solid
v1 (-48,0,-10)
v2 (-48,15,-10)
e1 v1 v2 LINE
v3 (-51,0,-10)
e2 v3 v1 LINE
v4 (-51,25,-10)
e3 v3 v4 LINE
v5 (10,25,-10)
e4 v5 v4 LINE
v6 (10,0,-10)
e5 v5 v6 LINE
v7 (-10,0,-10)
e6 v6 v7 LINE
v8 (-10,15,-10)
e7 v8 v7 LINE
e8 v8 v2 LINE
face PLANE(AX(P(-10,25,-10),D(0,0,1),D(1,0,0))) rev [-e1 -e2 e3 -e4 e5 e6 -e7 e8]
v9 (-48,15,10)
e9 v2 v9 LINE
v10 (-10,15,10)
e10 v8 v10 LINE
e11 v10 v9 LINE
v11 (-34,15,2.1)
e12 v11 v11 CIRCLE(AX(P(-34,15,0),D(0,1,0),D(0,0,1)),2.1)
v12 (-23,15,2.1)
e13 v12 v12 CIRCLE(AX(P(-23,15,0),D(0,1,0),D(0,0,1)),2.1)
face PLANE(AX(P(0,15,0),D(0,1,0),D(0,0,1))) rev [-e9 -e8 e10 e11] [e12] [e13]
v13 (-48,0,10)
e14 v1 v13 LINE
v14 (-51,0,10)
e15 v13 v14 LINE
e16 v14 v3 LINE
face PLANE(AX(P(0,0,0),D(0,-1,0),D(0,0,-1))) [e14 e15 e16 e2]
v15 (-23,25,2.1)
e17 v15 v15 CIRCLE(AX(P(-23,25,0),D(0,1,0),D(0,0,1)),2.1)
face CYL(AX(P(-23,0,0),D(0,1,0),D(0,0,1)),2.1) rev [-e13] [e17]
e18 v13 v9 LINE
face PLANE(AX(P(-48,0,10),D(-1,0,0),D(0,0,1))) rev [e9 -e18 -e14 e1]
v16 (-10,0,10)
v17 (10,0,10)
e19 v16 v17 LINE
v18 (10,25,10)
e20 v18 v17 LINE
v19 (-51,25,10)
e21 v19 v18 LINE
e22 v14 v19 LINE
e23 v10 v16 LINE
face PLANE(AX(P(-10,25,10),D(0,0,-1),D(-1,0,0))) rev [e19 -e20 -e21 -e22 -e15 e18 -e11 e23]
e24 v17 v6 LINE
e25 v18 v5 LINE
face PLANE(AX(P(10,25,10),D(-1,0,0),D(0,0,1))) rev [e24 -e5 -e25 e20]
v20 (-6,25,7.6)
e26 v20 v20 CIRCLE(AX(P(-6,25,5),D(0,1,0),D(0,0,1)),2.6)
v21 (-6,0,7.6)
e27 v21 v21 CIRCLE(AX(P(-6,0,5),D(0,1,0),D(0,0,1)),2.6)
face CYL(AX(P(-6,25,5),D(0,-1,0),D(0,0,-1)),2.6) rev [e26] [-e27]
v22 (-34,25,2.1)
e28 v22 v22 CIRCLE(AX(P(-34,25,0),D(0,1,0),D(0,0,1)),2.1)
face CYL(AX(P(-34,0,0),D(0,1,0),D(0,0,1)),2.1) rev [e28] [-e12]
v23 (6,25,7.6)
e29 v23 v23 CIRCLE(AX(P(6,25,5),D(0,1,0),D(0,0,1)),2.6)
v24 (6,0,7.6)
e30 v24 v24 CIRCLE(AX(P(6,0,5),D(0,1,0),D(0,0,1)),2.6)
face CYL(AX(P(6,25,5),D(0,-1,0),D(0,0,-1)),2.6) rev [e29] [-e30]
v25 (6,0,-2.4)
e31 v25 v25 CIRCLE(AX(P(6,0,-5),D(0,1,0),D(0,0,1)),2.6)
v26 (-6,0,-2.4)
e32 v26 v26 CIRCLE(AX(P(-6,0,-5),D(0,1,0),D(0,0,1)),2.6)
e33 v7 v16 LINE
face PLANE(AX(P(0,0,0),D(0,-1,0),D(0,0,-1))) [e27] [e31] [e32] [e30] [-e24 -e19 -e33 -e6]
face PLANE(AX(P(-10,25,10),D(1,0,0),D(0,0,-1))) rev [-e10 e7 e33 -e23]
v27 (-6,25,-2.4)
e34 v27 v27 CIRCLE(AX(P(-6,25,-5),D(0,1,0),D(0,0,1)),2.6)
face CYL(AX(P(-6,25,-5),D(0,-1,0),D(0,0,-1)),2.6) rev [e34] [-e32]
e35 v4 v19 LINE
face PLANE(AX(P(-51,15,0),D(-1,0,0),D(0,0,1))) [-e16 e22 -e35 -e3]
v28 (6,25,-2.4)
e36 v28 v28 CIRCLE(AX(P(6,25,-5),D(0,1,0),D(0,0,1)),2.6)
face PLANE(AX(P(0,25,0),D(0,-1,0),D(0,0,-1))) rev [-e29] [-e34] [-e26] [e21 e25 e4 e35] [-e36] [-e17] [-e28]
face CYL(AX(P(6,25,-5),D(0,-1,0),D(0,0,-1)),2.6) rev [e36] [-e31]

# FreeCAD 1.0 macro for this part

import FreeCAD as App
import Part
import Sketcher
Q = App.Units.Quantity


def add_polygon(sketch, points):
    """Adds a closed chain of lines whose ends are joined by coincident constraints."""
    first, n = sketch.GeometryCount, len(points)
    for a, b in zip(points, points[1:] + points[:1]):
        sketch.addGeometry(Part.LineSegment(App.Vector(*a, 0), App.Vector(*b, 0)), False)
    for i in range(n):
        sketch.addConstraint(Sketcher.Constraint("Coincident", first + i, 2, first + (i + 1) % n, 1))

doc = App.newDocument("Part")
body = doc.addObject("PartDesign::Body", "Body")

# Sketch on XZ plane
sketch1 = body.newObject("Sketcher::SketchObject", "Sketch")
sketch1.AttachmentSupport = (doc.getObject("XZ_Plane"), [""])
sketch1.MapMode = "FlatFace"
add_polygon(sketch1, [(-10, -10), (-10, 10), (10, 10), (10, -10)])  # lines 0-3
sketch1.addGeometry(Part.Circle(App.Vector(-6, 5, 0), App.Vector(0, 0, 1), 2.6), False)  # 4
sketch1.addGeometry(Part.Circle(App.Vector(6, 5, 0), App.Vector(0, 0, 1), 2.6), False)  # 5
sketch1.addGeometry(Part.Circle(App.Vector(-6, -5, 0), App.Vector(0, 0, 1), 2.6), False)  # 6
sketch1.addGeometry(Part.Circle(App.Vector(6, -5, 0), App.Vector(0, 0, 1), 2.6), False)  # 7
sketch1.addConstraint(Sketcher.Constraint("Vertical", 0))
sketch1.addConstraint(Sketcher.Constraint("Horizontal", 1))
sketch1.addConstraint(Sketcher.Constraint("Vertical", 2))
sketch1.addConstraint(Sketcher.Constraint("Horizontal", 3))
sketch1.addConstraint(Sketcher.Constraint("Equal", 4, 5))
sketch1.addConstraint(Sketcher.Constraint("Equal", 5, 6))
sketch1.addConstraint(Sketcher.Constraint("Equal", 6, 7))
sketch1.addConstraint(Sketcher.Constraint("Symmetric", 5, 3, 6, 3, -1, 1))
sketch1.addConstraint(Sketcher.Constraint("Symmetric", 4, 3, 7, 3, -1, 1))
sketch1.addConstraint(Sketcher.Constraint("Symmetric", 0, 2, 2, 2, -1, 1))
sketch1.addConstraint(Sketcher.Constraint("Symmetric", 4, 3, 5, 3, -2))
sketch1.addConstraint(Sketcher.Constraint("Equal", 3, 0))
sketch1.addConstraint(Sketcher.Constraint("Diameter", 4, Q("5.2 mm")))
sketch1.addConstraint(Sketcher.Constraint("DistanceX", 1, 1, 1, 2, Q("20 mm")))
sketch1.addConstraint(Sketcher.Constraint("DistanceX", 4, 3, -1, 1, Q("6 mm")))
sketch1.addConstraint(Sketcher.Constraint("DistanceY", -1, 1, 4, 3, Q("5 mm")))
pad1 = body.newObject("PartDesign::Pad", "Pad")
pad1.Profile = sketch1
pad1.Length = 25
pad1.Reversed = True

# Sketch on XZ plane
sketch2 = body.newObject("Sketcher::SketchObject", "Sketch001")
sketch2.AttachmentSupport = (doc.getObject("XZ_Plane"), [""])
sketch2.MapMode = "FlatFace"
sketch2.AttachmentOffset = App.Placement(App.Vector(0, 0, -25), App.Rotation())
add_polygon(sketch2, [(-51, -10), (-51, 10), (-10, 10), (-10, -10)])  # lines 0-3
sketch2.addConstraint(Sketcher.Constraint("Vertical", 0))
sketch2.addConstraint(Sketcher.Constraint("Horizontal", 1))
sketch2.addConstraint(Sketcher.Constraint("Vertical", 2))
sketch2.addConstraint(Sketcher.Constraint("Horizontal", 3))
sketch2.addConstraint(Sketcher.Constraint("DistanceX", 1, 1, 1, 2, Q("41 mm")))
sketch2.addConstraint(Sketcher.Constraint("DistanceY", 0, 1, 0, 2, Q("20 mm")))
sketch2.addConstraint(Sketcher.Constraint("DistanceX", 0, 2, -1, 1, Q("51 mm")))
sketch2.addConstraint(Sketcher.Constraint("DistanceY", -1, 1, 0, 2, Q("10 mm")))
pad2 = body.newObject("PartDesign::Pad", "Pad001")
pad2.Profile = sketch2
pad2.Length = 10

# Sketch on XZ plane
sketch3 = body.newObject("Sketcher::SketchObject", "Sketch002")
sketch3.AttachmentSupport = (doc.getObject("XZ_Plane"), [""])
sketch3.MapMode = "FlatFace"
sketch3.AttachmentOffset = App.Placement(App.Vector(0, 0, -15), App.Rotation())
add_polygon(sketch3, [(-51, 10), (-51, -10), (-48, -10), (-48, 10)])  # lines 0-3
sketch3.addConstraint(Sketcher.Constraint("Vertical", 0))
sketch3.addConstraint(Sketcher.Constraint("Horizontal", 1))
sketch3.addConstraint(Sketcher.Constraint("Vertical", 2))
sketch3.addConstraint(Sketcher.Constraint("Horizontal", 3))
sketch3.addConstraint(Sketcher.Constraint("DistanceX", 1, 1, 1, 2, Q("3 mm")))
sketch3.addConstraint(Sketcher.Constraint("DistanceY", 0, 2, 0, 1, Q("20 mm")))
sketch3.addConstraint(Sketcher.Constraint("DistanceX", 0, 2, -1, 1, Q("51 mm")))
sketch3.addConstraint(Sketcher.Constraint("DistanceY", 0, 2, -1, 1, Q("10 mm")))
pad3 = body.newObject("PartDesign::Pad", "Pad002")
pad3.Profile = sketch3
pad3.Length = 15

# Sketch on XZ plane
sketch4 = body.newObject("Sketcher::SketchObject", "Sketch003")
sketch4.AttachmentSupport = (doc.getObject("XZ_Plane"), [""])
sketch4.MapMode = "FlatFace"
sketch4.AttachmentOffset = App.Placement(App.Vector(0, 0, -25), App.Rotation())
sketch4.addGeometry(Part.Circle(App.Vector(-34, 0, 0), App.Vector(0, 0, 1), 2.1), False)
sketch4.addGeometry(Part.Circle(App.Vector(-23, 0, 0), App.Vector(0, 0, 1), 2.1), False)
sketch4.addConstraint(Sketcher.Constraint("Equal", 0, 1))
sketch4.addConstraint(Sketcher.Constraint("PointOnObject", 0, 3, -1))
sketch4.addConstraint(Sketcher.Constraint("PointOnObject", 1, 3, -1))
sketch4.addConstraint(Sketcher.Constraint("Diameter", 0, Q("4.2 mm")))
sketch4.addConstraint(Sketcher.Constraint("DistanceX", 0, 3, -1, 1, Q("34 mm")))
sketch4.addConstraint(Sketcher.Constraint("DistanceX", 1, 3, -1, 1, Q("23 mm")))
pocket1 = body.newObject("PartDesign::Pocket", "Pocket")
pocket1.Profile = sketch4
pocket1.Type = "ThroughAll"
pocket1.Reversed = True

doc.recompute()
